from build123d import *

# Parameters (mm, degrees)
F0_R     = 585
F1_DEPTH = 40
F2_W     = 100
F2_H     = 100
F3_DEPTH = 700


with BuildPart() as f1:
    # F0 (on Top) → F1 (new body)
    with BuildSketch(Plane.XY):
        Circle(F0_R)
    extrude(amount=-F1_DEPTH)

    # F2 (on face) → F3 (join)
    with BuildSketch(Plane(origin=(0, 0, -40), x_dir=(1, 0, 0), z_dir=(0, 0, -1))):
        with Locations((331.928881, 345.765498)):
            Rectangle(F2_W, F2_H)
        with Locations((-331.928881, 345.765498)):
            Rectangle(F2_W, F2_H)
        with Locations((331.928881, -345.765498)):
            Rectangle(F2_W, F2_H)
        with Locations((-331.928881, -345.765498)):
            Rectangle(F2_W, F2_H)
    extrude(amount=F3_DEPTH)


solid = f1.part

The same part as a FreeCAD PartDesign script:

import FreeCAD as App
import Part
import Sketcher

V = App.Vector
Q = App.Units.Quantity

doc = App.newDocument("Part")
params = doc.addObject("Spreadsheet::Sheet", "Params")
for row, (alias, value) in enumerate([
    ("sketch1_diameter", "1170 mm"),
    ("pad1_length", "40 mm"),
    ("sketch2_width", "100 mm"),
    ("pad2_length", "700 mm"),
], start=1):
    params.set(f"A{row}", alias)
    params.set(f"B{row}", "=" + value)
    params.setAlias(f"B{row}", alias)

body = doc.addObject("PartDesign::Body", "Body")

# Sketch on XY plane
sketch1 = doc.addObject("Sketcher::SketchObject", "Sketch")
body.addObject(sketch1)
sketch1.AttachmentSupport = (doc.XY_Plane, [""])
sketch1.MapMode = "FlatFace"
sketch1.addGeometry(Part.Circle(V(0, 0, 0), V(0, 0, 1), 585), False)
sketch1.addConstraint(Sketcher.Constraint("Coincident", 0, 3, -1, 1))
sketch1.addConstraint(Sketcher.Constraint("Diameter", 0, Q("1170 mm")))
sketch1.setExpression("Constraints[1]", "Params.sketch1_diameter")
pad1 = doc.addObject("PartDesign::Pad", "Pad")
body.addObject(pad1)
pad1.Profile = sketch1
pad1.setExpression("Length", "Params.pad1_length")
pad1.Reversed = True

# Sketch on XY plane
sketch2 = doc.addObject("Sketcher::SketchObject", "Sketch001")
body.addObject(sketch2)
sketch2.AttachmentSupport = (doc.XY_Plane, [""])
sketch2.MapMode = "FlatFace"
sketch2.AttachmentOffset = App.Placement(V(0, 0, -40), App.Rotation())
sketch2.addGeometry(Part.LineSegment(V(282, -396, 0), V(282, -296, 0)), False)
sketch2.addGeometry(Part.LineSegment(V(282, -296, 0), V(382, -296, 0)), False)
sketch2.addGeometry(Part.LineSegment(V(382, -296, 0), V(382, -396, 0)), False)
sketch2.addGeometry(Part.LineSegment(V(382, -396, 0), V(282, -396, 0)), False)
sketch2.addGeometry(Part.LineSegment(V(-382, -396, 0), V(-382, -296, 0)), False)
sketch2.addGeometry(Part.LineSegment(V(-382, -296, 0), V(-282, -296, 0)), False)
sketch2.addGeometry(Part.LineSegment(V(-282, -296, 0), V(-282, -396, 0)), False)
sketch2.addGeometry(Part.LineSegment(V(-282, -396, 0), V(-382, -396, 0)), False)
sketch2.addGeometry(Part.LineSegment(V(282, 296, 0), V(282, 396, 0)), False)
sketch2.addGeometry(Part.LineSegment(V(282, 396, 0), V(382, 396, 0)), False)
sketch2.addGeometry(Part.LineSegment(V(382, 396, 0), V(382, 296, 0)), False)
sketch2.addGeometry(Part.LineSegment(V(382, 296, 0), V(282, 296, 0)), False)
sketch2.addGeometry(Part.LineSegment(V(-382, 296, 0), V(-382, 396, 0)), False)
sketch2.addGeometry(Part.LineSegment(V(-382, 396, 0), V(-282, 396, 0)), False)
sketch2.addGeometry(Part.LineSegment(V(-282, 396, 0), V(-282, 296, 0)), False)
sketch2.addGeometry(Part.LineSegment(V(-282, 296, 0), V(-382, 296, 0)), False)
sketch2.addConstraint(Sketcher.Constraint("Coincident", 0, 2, 1, 1))
sketch2.addConstraint(Sketcher.Constraint("Coincident", 1, 2, 2, 1))
sketch2.addConstraint(Sketcher.Constraint("Coincident", 2, 2, 3, 1))
sketch2.addConstraint(Sketcher.Constraint("Coincident", 3, 2, 0, 1))
sketch2.addConstraint(Sketcher.Constraint("Coincident", 4, 2, 5, 1))
sketch2.addConstraint(Sketcher.Constraint("Coincident", 5, 2, 6, 1))
sketch2.addConstraint(Sketcher.Constraint("Coincident", 6, 2, 7, 1))
sketch2.addConstraint(Sketcher.Constraint("Coincident", 7, 2, 4, 1))
sketch2.addConstraint(Sketcher.Constraint("Coincident", 8, 2, 9, 1))
sketch2.addConstraint(Sketcher.Constraint("Coincident", 9, 2, 10, 1))
sketch2.addConstraint(Sketcher.Constraint("Coincident", 10, 2, 11, 1))
sketch2.addConstraint(Sketcher.Constraint("Coincident", 11, 2, 8, 1))
sketch2.addConstraint(Sketcher.Constraint("Coincident", 12, 2, 13, 1))
sketch2.addConstraint(Sketcher.Constraint("Coincident", 13, 2, 14, 1))
sketch2.addConstraint(Sketcher.Constraint("Coincident", 14, 2, 15, 1))
sketch2.addConstraint(Sketcher.Constraint("Coincident", 15, 2, 12, 1))
sketch2.addConstraint(Sketcher.Constraint("Vertical", 0))
sketch2.addConstraint(Sketcher.Constraint("Horizontal", 1))
sketch2.addConstraint(Sketcher.Constraint("Vertical", 2))
sketch2.addConstraint(Sketcher.Constraint("Horizontal", 3))
sketch2.addConstraint(Sketcher.Constraint("Vertical", 4))
sketch2.addConstraint(Sketcher.Constraint("Horizontal", 5))
sketch2.addConstraint(Sketcher.Constraint("Vertical", 6))
sketch2.addConstraint(Sketcher.Constraint("Horizontal", 7))
sketch2.addConstraint(Sketcher.Constraint("Vertical", 8))
sketch2.addConstraint(Sketcher.Constraint("Horizontal", 9))
sketch2.addConstraint(Sketcher.Constraint("Vertical", 10))
sketch2.addConstraint(Sketcher.Constraint("Horizontal", 11))
sketch2.addConstraint(Sketcher.Constraint("Vertical", 12))
sketch2.addConstraint(Sketcher.Constraint("Horizontal", 13))
sketch2.addConstraint(Sketcher.Constraint("Vertical", 14))
sketch2.addConstraint(Sketcher.Constraint("Horizontal", 15))
sketch2.addConstraint(Sketcher.Constraint("Symmetric", 6, 2, 8, 2, -1, 1))
sketch2.addConstraint(Sketcher.Constraint("Symmetric", 4, 2, 10, 2, -1, 1))
sketch2.addConstraint(Sketcher.Constraint("Symmetric", 2, 2, 12, 2, -1, 1))
sketch2.addConstraint(Sketcher.Constraint("Symmetric", 0, 2, 14, 2, -1, 1))
sketch2.addConstraint(Sketcher.Constraint("Symmetric", 1, 2, 4, 2, -2))
sketch2.addConstraint(Sketcher.Constraint("Symmetric", 3, 2, 6, 2, -2))
sketch2.addConstraint(Sketcher.Constraint("Equal", 15, 0))
sketch2.addConstraint(Sketcher.Constraint("DistanceX", 1, 1, 1, 2, Q("100 mm")))
sketch2.addConstraint(Sketcher.Constraint("DistanceY", 0, 2, -1, 1, Q("295.765498 mm")))
sketch2.addConstraint(Sketcher.Constraint("DistanceX", -1, 1, 0, 2, Q("281.928881 mm")))
sketch2.setExpression("Constraints[39]", "Params.sketch2_width")
pad2 = doc.addObject("PartDesign::Pad", "Pad001")
body.addObject(pad2)
pad2.Profile = sketch2
pad2.setExpression("Length", "Params.pad2_length")
pad2.Reversed = True

doc.recompute()
